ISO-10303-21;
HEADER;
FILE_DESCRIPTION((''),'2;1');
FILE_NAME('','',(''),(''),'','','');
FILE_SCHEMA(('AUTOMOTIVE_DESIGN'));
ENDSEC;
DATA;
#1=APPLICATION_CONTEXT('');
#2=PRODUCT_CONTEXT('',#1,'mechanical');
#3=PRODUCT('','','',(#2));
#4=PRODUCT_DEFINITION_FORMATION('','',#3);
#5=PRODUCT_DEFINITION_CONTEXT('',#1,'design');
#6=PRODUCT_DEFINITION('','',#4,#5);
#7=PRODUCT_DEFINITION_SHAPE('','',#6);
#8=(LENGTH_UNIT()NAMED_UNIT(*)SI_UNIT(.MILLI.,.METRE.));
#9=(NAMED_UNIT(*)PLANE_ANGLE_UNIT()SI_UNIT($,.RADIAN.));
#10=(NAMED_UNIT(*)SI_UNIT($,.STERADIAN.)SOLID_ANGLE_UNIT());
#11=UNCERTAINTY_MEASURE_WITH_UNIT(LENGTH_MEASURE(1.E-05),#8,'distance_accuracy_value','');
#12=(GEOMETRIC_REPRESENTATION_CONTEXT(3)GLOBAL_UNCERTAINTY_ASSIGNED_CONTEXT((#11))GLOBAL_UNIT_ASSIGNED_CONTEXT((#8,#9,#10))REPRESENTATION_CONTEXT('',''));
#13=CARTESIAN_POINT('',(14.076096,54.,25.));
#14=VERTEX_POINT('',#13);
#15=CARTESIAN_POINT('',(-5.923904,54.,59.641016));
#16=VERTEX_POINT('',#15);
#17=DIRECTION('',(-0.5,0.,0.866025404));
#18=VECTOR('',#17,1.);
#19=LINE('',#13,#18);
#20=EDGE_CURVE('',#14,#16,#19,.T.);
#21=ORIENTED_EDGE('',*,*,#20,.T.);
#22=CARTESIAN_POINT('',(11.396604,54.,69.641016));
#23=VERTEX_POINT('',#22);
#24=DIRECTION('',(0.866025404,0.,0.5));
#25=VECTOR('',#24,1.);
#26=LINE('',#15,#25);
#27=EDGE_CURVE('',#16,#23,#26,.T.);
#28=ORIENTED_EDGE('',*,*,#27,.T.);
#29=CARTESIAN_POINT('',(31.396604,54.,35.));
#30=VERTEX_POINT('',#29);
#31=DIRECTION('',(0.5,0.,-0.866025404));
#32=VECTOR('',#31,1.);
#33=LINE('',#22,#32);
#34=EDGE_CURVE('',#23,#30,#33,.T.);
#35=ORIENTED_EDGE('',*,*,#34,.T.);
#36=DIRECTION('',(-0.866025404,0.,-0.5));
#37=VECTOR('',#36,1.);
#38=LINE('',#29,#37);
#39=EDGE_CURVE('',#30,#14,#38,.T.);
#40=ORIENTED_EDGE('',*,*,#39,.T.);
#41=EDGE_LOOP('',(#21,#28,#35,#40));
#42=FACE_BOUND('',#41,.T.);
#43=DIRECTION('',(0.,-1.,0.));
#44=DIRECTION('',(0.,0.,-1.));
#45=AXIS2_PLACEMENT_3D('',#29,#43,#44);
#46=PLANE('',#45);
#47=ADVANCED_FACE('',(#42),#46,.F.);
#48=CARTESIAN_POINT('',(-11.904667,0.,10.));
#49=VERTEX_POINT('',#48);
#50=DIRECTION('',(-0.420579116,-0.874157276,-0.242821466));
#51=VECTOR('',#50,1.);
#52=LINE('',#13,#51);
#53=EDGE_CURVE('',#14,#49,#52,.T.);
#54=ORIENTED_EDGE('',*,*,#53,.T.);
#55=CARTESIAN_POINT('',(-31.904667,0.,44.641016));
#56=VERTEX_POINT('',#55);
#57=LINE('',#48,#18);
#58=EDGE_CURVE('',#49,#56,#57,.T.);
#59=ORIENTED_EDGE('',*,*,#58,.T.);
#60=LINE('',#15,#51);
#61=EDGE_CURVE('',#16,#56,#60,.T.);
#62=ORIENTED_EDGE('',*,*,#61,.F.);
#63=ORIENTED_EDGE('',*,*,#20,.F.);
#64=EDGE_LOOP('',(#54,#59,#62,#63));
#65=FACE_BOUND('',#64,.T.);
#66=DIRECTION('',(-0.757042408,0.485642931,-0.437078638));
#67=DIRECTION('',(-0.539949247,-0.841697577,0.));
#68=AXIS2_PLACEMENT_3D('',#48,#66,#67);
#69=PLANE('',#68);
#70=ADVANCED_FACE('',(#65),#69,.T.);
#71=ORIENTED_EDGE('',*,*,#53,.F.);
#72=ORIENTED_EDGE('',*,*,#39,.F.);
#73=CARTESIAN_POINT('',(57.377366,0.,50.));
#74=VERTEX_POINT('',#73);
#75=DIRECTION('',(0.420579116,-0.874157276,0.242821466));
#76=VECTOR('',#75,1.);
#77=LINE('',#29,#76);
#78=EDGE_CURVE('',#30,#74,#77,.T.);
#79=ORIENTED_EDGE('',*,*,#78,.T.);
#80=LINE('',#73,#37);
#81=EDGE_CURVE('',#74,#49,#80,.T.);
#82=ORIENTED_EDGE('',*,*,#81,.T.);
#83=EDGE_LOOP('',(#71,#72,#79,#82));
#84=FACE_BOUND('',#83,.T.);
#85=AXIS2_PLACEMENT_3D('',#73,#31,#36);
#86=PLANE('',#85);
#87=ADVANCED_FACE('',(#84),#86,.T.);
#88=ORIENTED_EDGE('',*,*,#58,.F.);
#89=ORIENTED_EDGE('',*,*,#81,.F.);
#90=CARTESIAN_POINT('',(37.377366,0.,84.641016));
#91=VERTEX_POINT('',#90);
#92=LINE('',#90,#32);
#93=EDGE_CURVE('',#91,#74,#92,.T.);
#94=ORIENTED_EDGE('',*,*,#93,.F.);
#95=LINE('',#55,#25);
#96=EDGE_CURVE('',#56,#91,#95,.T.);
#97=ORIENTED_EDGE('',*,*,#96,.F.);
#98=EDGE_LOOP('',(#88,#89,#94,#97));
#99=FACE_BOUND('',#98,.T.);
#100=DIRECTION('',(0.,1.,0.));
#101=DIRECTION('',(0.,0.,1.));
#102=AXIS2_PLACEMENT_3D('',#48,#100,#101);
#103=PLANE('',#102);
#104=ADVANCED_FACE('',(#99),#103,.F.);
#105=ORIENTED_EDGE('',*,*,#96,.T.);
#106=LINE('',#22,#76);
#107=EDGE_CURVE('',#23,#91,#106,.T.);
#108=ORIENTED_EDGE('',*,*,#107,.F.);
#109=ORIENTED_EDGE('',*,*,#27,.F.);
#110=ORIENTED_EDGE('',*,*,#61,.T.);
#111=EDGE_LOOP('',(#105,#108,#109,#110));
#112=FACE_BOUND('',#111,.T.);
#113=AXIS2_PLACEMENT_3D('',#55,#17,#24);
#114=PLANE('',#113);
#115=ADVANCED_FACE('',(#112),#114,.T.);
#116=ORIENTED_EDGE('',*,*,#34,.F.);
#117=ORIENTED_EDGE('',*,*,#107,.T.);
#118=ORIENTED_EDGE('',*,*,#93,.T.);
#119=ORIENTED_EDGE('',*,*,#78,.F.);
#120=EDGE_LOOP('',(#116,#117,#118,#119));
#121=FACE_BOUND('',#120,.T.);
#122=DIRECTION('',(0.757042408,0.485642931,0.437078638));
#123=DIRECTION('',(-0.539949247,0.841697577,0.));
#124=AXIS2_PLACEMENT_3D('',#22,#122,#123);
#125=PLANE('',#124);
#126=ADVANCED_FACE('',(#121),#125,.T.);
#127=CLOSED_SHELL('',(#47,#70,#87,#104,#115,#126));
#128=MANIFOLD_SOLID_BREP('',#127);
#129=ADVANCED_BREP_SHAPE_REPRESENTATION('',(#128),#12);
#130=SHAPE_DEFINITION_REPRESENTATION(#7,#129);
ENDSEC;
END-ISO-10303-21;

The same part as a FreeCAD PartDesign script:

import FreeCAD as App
import Part
import Sketcher
from FreeCAD import Vector
Q = App.Units.Quantity


def add_polygon(sketch, points):
    """Adds a closed chain of lines whose ends are joined by coincident constraints."""
    first, n = sketch.GeometryCount, len(points)
    for a, b in zip(points, points[1:] + points[:1]):
        sketch.addGeometry(Part.LineSegment(App.Vector(*a, 0), App.Vector(*b, 0)), False)
    for i in range(n):
        sketch.addConstraint(Sketcher.Constraint("Coincident", first + i, 2, first + (i + 1) % n, 1))

doc = App.newDocument("Part")
body = doc.addObject("PartDesign::Body", "Body")

sketch1 = doc.addObject("Sketcher::SketchObject", "Sketch")
body.addObject(sketch1)
sketch1.AttachmentSupport = (doc.XZ_Plane, [""])
sketch1.MapMode = "FlatFace"
sketch1.AttachmentOffset = App.Placement(Vector(0, 0, -54), App.Rotation())
add_polygon(sketch1, [(14, 25), (-6, 60), (11, 70), (31, 35)])
sketch1.addConstraint([
    Sketcher.Constraint("Perpendicular", 0, 1),
    Sketcher.Constraint("Perpendicular", 1, 2),
    Sketcher.Constraint("Perpendicular", 2, 3),
    Sketcher.Constraint("Angle", 0, Q("120 deg")),
    Sketcher.Constraint("Distance", 0, Q("40 mm")),
    Sketcher.Constraint("Distance", 1, Q("20 mm")),
    Sketcher.Constraint("DistanceY", -1, 1, 2, 2, Q("35 mm")),
    Sketcher.Constraint("DistanceX", 0, 2, -1, 1, Q("5.923904 mm")),
])

sketch2 = doc.addObject("Sketcher::SketchObject", "Sketch001")
body.addObject(sketch2)
sketch2.AttachmentSupport = (doc.XZ_Plane, [""])
sketch2.MapMode = "FlatFace"
add_polygon(sketch2, [(-12, 10), (-32, 45), (37, 85), (57, 50)])
sketch2.addConstraint([
    Sketcher.Constraint("Perpendicular", 0, 1),
    Sketcher.Constraint("Perpendicular", 1, 2),
    Sketcher.Constraint("Perpendicular", 2, 3),
    Sketcher.Constraint("Angle", 0, Q("120 deg")),
    Sketcher.Constraint("Distance", 0, Q("40 mm")),
    Sketcher.Constraint("Distance", 1, Q("80 mm")),
    Sketcher.Constraint("DistanceY", -1, 1, 2, 2, Q("50 mm")),
    Sketcher.Constraint("DistanceX", 0, 2, -1, 1, Q("31.904667 mm")),
])

additiveloft = doc.addObject("PartDesign::AdditiveLoft", "AdditiveLoft")
body.addObject(additiveloft)
additiveloft.Profile = sketch1
additiveloft.Sections = [sketch2]

doc.recompute()
